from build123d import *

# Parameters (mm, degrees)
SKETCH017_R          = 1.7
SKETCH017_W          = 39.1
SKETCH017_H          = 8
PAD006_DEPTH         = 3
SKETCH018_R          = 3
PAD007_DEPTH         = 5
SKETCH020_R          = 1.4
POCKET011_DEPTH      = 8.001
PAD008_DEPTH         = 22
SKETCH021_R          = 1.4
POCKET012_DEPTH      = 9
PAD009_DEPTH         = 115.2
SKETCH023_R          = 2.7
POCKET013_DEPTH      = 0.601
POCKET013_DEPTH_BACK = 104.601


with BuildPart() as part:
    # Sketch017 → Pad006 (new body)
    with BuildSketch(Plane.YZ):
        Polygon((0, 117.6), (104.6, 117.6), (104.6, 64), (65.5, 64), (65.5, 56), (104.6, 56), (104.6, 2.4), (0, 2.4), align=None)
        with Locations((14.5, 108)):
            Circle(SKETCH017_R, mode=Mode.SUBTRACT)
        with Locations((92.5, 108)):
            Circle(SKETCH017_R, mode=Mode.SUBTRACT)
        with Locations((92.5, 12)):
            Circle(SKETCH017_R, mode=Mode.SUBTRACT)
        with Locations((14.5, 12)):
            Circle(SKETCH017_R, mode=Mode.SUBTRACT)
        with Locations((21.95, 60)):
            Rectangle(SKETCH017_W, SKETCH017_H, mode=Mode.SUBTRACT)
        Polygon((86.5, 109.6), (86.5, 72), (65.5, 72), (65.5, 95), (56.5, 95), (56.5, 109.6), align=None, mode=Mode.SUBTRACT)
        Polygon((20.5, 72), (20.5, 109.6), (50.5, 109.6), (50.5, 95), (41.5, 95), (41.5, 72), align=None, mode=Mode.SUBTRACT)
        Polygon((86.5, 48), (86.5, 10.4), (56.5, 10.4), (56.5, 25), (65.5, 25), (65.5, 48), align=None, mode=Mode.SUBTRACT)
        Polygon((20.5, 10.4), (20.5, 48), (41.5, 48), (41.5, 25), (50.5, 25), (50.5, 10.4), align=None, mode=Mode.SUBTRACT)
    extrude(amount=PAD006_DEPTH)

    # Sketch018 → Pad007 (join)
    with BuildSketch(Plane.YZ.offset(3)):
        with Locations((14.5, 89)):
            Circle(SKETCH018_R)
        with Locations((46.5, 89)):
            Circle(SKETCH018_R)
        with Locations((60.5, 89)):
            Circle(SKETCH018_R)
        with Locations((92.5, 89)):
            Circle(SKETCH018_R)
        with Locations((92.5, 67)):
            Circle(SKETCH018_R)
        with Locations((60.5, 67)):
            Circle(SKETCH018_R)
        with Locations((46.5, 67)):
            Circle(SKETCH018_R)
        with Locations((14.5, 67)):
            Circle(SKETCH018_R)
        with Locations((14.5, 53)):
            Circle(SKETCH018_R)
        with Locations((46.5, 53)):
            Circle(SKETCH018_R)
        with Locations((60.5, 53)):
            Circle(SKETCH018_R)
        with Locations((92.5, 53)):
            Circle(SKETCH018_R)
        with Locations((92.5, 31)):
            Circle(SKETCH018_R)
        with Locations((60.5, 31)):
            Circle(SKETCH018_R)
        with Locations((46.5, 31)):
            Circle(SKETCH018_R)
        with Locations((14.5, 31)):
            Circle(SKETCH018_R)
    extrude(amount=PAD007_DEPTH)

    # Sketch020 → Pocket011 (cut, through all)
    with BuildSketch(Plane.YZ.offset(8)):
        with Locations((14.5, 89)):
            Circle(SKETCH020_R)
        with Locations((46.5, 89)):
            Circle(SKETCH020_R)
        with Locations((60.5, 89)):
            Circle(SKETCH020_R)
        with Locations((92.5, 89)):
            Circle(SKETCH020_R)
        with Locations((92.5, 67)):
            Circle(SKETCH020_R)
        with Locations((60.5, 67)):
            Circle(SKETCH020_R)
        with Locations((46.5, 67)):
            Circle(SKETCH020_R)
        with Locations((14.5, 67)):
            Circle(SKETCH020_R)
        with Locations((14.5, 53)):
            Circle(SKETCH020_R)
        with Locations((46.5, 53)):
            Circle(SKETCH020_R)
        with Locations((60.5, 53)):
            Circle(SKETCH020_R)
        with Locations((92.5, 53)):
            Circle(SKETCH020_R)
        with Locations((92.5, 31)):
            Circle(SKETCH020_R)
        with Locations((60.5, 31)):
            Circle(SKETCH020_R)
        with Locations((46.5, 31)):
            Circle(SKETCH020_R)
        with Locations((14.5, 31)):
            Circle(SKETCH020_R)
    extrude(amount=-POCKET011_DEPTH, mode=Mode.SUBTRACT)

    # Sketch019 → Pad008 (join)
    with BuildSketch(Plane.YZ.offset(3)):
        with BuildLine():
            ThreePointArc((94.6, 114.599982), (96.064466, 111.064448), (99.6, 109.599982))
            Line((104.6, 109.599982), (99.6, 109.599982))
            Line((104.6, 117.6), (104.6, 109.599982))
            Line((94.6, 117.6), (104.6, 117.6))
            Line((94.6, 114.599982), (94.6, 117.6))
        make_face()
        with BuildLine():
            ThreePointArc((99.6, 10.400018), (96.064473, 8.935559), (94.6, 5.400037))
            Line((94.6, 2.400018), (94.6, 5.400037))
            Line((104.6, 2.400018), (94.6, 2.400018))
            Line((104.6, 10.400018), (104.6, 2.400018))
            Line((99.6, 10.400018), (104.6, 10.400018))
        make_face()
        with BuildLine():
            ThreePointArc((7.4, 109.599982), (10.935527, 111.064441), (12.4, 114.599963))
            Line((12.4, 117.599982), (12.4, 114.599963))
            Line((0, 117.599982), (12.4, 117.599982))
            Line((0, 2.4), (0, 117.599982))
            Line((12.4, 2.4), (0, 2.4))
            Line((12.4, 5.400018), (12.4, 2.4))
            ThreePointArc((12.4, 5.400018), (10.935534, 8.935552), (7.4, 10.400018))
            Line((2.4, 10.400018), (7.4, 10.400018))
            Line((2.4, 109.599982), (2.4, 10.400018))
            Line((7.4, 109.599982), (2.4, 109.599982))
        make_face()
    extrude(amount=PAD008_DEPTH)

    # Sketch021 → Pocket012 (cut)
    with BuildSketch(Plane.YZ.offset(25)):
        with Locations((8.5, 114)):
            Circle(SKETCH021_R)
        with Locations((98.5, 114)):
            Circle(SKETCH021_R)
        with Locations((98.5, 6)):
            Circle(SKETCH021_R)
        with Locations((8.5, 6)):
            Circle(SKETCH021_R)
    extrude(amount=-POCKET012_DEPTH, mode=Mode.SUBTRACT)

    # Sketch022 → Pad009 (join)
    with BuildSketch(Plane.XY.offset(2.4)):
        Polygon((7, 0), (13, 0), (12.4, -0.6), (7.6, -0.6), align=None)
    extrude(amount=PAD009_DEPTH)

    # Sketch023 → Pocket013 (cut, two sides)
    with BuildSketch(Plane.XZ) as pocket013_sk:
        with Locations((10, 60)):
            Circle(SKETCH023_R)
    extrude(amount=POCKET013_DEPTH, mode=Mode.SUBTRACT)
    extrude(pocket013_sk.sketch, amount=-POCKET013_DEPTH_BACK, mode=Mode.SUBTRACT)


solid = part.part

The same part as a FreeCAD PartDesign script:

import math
import FreeCAD as App
import Part
import Sketcher
Q = App.Units.Quantity

doc = App.newDocument("Part")
params = doc.addObject("Spreadsheet::Sheet", "Params")
for row, (alias, value) in enumerate([
    ("sketch1_diameter", "3.4 mm"),
    ("sketch1_width", "30 mm"),
    ("sketch1_width2", "9 mm"),
    ("sketch1_height", "8 mm"),
    ("sketch1_height2", "23 mm"),
    ("pad1_length", "3 mm"),
    ("sketch2_diameter", "6 mm"),
    ("pad2_length", "5 mm"),
    ("sketch3_diameter", "2.8 mm"),
    ("sketch4_radius", "5 mm"),
    ("sketch4_width", "5 mm"),
    ("sketch4_height", "8 mm"),
    ("sketch4_width2", "12.4 mm"),
    ("pad3_length", "22 mm"),
    ("sketch5_diameter", "2.8 mm"),
    ("pocket2_length", "9 mm"),
    ("sketch6_width", "6 mm"),
    ("sketch6_width2", "4.8 mm"),
    ("pad4_length", "115.2 mm"),
    ("sketch7_diameter", "5.4 mm"),
], start=1):
    params.set(f"A{row}", alias)
    params.set(f"B{row}", "=" + value)
    params.setAlias(f"B{row}", alias)

body = doc.addObject("PartDesign::Body", "Body")

# Sketch on YZ plane
sketch1 = body.newObject("Sketcher::SketchObject", "Sketch")
sketch1.AttachmentSupport = (doc.getObject("YZ_Plane"), [""])
sketch1.MapMode = "FlatFace"
sketch1.addGeometry([
    Part.LineSegment(App.Vector(104.6, 117.6, 0), App.Vector(0, 117.6, 0)),  # 0
    Part.LineSegment(App.Vector(0, 117.6, 0), App.Vector(0, 2.4, 0)),  # 1
    Part.LineSegment(App.Vector(0, 2.4, 0), App.Vector(104.6, 2.4, 0)),  # 2
    Part.LineSegment(App.Vector(104.6, 2.4, 0), App.Vector(104.6, 56, 0)),  # 3
    Part.LineSegment(App.Vector(104.6, 56, 0), App.Vector(65.5, 56, 0)),  # 4
    Part.LineSegment(App.Vector(65.5, 56, 0), App.Vector(65.5, 64, 0)),  # 5
    Part.LineSegment(App.Vector(65.5, 64, 0), App.Vector(104.6, 64, 0)),  # 6
    Part.LineSegment(App.Vector(104.6, 64, 0), App.Vector(104.6, 117.6, 0)),  # 7
    Part.Circle(App.Vector(92.5, 12, 0), App.Vector(0, 0, 1), 1.7),  # 8
    Part.LineSegment(App.Vector(86.5, 48, 0), App.Vector(86.5, 10.4, 0)),  # 9
    Part.LineSegment(App.Vector(86.5, 10.4, 0), App.Vector(56.5, 10.4, 0)),  # 10
    Part.LineSegment(App.Vector(56.5, 10.4, 0), App.Vector(56.5, 25, 0)),  # 11
    Part.LineSegment(App.Vector(56.5, 25, 0), App.Vector(65.5, 25, 0)),  # 12
    Part.LineSegment(App.Vector(65.5, 25, 0), App.Vector(65.5, 48, 0)),  # 13
    Part.LineSegment(App.Vector(65.5, 48, 0), App.Vector(86.5, 48, 0)),  # 14
    Part.LineSegment(App.Vector(20.5, 10.4, 0), App.Vector(20.5, 48, 0)),  # 15
    Part.LineSegment(App.Vector(20.5, 48, 0), App.Vector(41.5, 48, 0)),  # 16
    Part.LineSegment(App.Vector(41.5, 48, 0), App.Vector(41.5, 25, 0)),  # 17
    Part.LineSegment(App.Vector(41.5, 25, 0), App.Vector(50.5, 25, 0)),  # 18
    Part.LineSegment(App.Vector(50.5, 25, 0), App.Vector(50.5, 10.4, 0)),  # 19
    Part.LineSegment(App.Vector(50.5, 10.4, 0), App.Vector(20.5, 10.4, 0)),  # 20
    Part.Circle(App.Vector(14.5, 12, 0), App.Vector(0, 0, 1), 1.7),  # 21
    Part.LineSegment(App.Vector(86.5, 109.6, 0), App.Vector(86.5, 72, 0)),  # 22
    Part.LineSegment(App.Vector(86.5, 72, 0), App.Vector(65.5, 72, 0)),  # 23
    Part.LineSegment(App.Vector(65.5, 72, 0), App.Vector(65.5, 95, 0)),  # 24
    Part.LineSegment(App.Vector(65.5, 95, 0), App.Vector(56.5, 95, 0)),  # 25
    Part.LineSegment(App.Vector(56.5, 95, 0), App.Vector(56.5, 109.6, 0)),  # 26
    Part.LineSegment(App.Vector(56.5, 109.6, 0), App.Vector(86.5, 109.6, 0)),  # 27
    Part.Circle(App.Vector(92.5, 108, 0), App.Vector(0, 0, 1), 1.7),  # 28
    Part.LineSegment(App.Vector(2.4, 56, 0), App.Vector(2.4, 64, 0)),  # 29
    Part.LineSegment(App.Vector(2.4, 64, 0), App.Vector(41.5, 64, 0)),  # 30
    Part.LineSegment(App.Vector(41.5, 64, 0), App.Vector(41.5, 56, 0)),  # 31
    Part.LineSegment(App.Vector(41.5, 56, 0), App.Vector(2.4, 56, 0)),  # 32
    Part.LineSegment(App.Vector(20.5, 72, 0), App.Vector(20.5, 109.6, 0)),  # 33
    Part.LineSegment(App.Vector(20.5, 109.6, 0), App.Vector(50.5, 109.6, 0)),  # 34
    Part.LineSegment(App.Vector(50.5, 109.6, 0), App.Vector(50.5, 95, 0)),  # 35
    Part.LineSegment(App.Vector(50.5, 95, 0), App.Vector(41.5, 95, 0)),  # 36
    Part.LineSegment(App.Vector(41.5, 95, 0), App.Vector(41.5, 72, 0)),  # 37
    Part.LineSegment(App.Vector(41.5, 72, 0), App.Vector(20.5, 72, 0)),  # 38
    Part.Circle(App.Vector(14.5, 108, 0), App.Vector(0, 0, 1), 1.7),  # 39
], False)
sketch1.addConstraint([
    Sketcher.Constraint("Coincident", 0, 2, 1, 1),
    Sketcher.Constraint("Coincident", 1, 2, 2, 1),
    Sketcher.Constraint("Coincident", 2, 2, 3, 1),
    Sketcher.Constraint("Coincident", 3, 2, 4, 1),
    Sketcher.Constraint("Coincident", 4, 2, 5, 1),
    Sketcher.Constraint("Coincident", 5, 2, 6, 1),
    Sketcher.Constraint("Coincident", 6, 2, 7, 1),
    Sketcher.Constraint("Coincident", 7, 2, 0, 1),
    Sketcher.Constraint("Coincident", 9, 2, 10, 1),
    Sketcher.Constraint("Coincident", 10, 2, 11, 1),
    Sketcher.Constraint("Coincident", 11, 2, 12, 1),
    Sketcher.Constraint("Coincident", 12, 2, 13, 1),
    Sketcher.Constraint("Coincident", 13, 2, 14, 1),
    Sketcher.Constraint("Coincident", 14, 2, 9, 1),
    Sketcher.Constraint("Coincident", 15, 2, 16, 1),
    Sketcher.Constraint("Coincident", 16, 2, 17, 1),
    Sketcher.Constraint("Coincident", 17, 2, 18, 1),
    Sketcher.Constraint("Coincident", 18, 2, 19, 1),
    Sketcher.Constraint("Coincident", 19, 2, 20, 1),
    Sketcher.Constraint("Coincident", 20, 2, 15, 1),
    Sketcher.Constraint("Coincident", 22, 2, 23, 1),
    Sketcher.Constraint("Coincident", 23, 2, 24, 1),
    Sketcher.Constraint("Coincident", 24, 2, 25, 1),
    Sketcher.Constraint("Coincident", 25, 2, 26, 1),
    Sketcher.Constraint("Coincident", 26, 2, 27, 1),
    Sketcher.Constraint("Coincident", 27, 2, 22, 1),
    Sketcher.Constraint("Coincident", 29, 2, 30, 1),
    Sketcher.Constraint("Coincident", 30, 2, 31, 1),
    Sketcher.Constraint("Coincident", 31, 2, 32, 1),
    Sketcher.Constraint("Coincident", 32, 2, 29, 1),
    Sketcher.Constraint("Coincident", 33, 2, 34, 1),
    Sketcher.Constraint("Coincident", 34, 2, 35, 1),
    Sketcher.Constraint("Coincident", 35, 2, 36, 1),
    Sketcher.Constraint("Coincident", 36, 2, 37, 1),
    Sketcher.Constraint("Coincident", 37, 2, 38, 1),
    Sketcher.Constraint("Coincident", 38, 2, 33, 1),
    Sketcher.Constraint("Horizontal", 0),
    Sketcher.Constraint("Vertical", 1),
    Sketcher.Constraint("Horizontal", 2),
    Sketcher.Constraint("Vertical", 3),
    Sketcher.Constraint("Horizontal", 4),
    Sketcher.Constraint("Vertical", 5),
    Sketcher.Constraint("Horizontal", 6),
    Sketcher.Constraint("Vertical", 7),
    Sketcher.Constraint("Vertical", 9),
    Sketcher.Constraint("Horizontal", 10),
    Sketcher.Constraint("Vertical", 11),
    Sketcher.Constraint("Horizontal", 12),
    Sketcher.Constraint("Vertical", 13),
    Sketcher.Constraint("Horizontal", 14),
    Sketcher.Constraint("Vertical", 15),
    Sketcher.Constraint("Horizontal", 16),
    Sketcher.Constraint("Vertical", 17),
    Sketcher.Constraint("Horizontal", 18),
    Sketcher.Constraint("Vertical", 19),
    Sketcher.Constraint("Horizontal", 20),
    Sketcher.Constraint("Vertical", 22),
    Sketcher.Constraint("Horizontal", 23),
    Sketcher.Constraint("Vertical", 24),
    Sketcher.Constraint("Horizontal", 25),
    Sketcher.Constraint("Vertical", 26),
    Sketcher.Constraint("Horizontal", 27),
    Sketcher.Constraint("Vertical", 29),
    Sketcher.Constraint("Horizontal", 30),
    Sketcher.Constraint("Vertical", 31),
    Sketcher.Constraint("Horizontal", 32),
    Sketcher.Constraint("Vertical", 33),
    Sketcher.Constraint("Horizontal", 34),
    Sketcher.Constraint("Vertical", 35),
    Sketcher.Constraint("Horizontal", 36),
    Sketcher.Constraint("Vertical", 37),
    Sketcher.Constraint("Horizontal", 38),
    Sketcher.Constraint("Equal", 8, 21),
    Sketcher.Constraint("Equal", 21, 28),
    Sketcher.Constraint("Equal", 28, 39),
    Sketcher.Constraint("PointOnObject", 0, 2, -2),
    Sketcher.Constraint("Horizontal", 8, 3, 21, 3),
    Sketcher.Constraint("Horizontal", 28, 3, 39, 3),
    Sketcher.Constraint("Horizontal", 14, 2, 15, 2),
    Sketcher.Constraint("Horizontal", 12, 2, 17, 2),
    Sketcher.Constraint("Horizontal", 10, 2, 19, 2),
    Sketcher.Constraint("Horizontal", 6, 2, 29, 2),
    Sketcher.Constraint("Horizontal", 4, 2, 31, 2),
    Sketcher.Constraint("Horizontal", 27, 2, 33, 2),
    Sketcher.Constraint("Horizontal", 25, 2, 35, 2),
    Sketcher.Constraint("Horizontal", 23, 2, 37, 2),
    Sketcher.Constraint("Vertical", 8, 3, 28, 3),
    Sketcher.Constraint("Vertical", 21, 3, 39, 3),
    Sketcher.Constraint("Vertical", 3, 2, 6, 2),
    Sketcher.Constraint("Vertical", 5, 2, 12, 2),
    Sketcher.Constraint("Vertical", 14, 2, 22, 2),
    Sketcher.Constraint("Vertical", 13, 2, 23, 2),
    Sketcher.Constraint("Vertical", 11, 2, 25, 2),
    Sketcher.Constraint("Vertical", 17, 2, 30, 2),
    Sketcher.Constraint("Vertical", 20, 2, 33, 2),
    Sketcher.Constraint("Vertical", 19, 2, 34, 2),
    Sketcher.Constraint("Vertical", 31, 2, 36, 2),
    Sketcher.Constraint("Equal", 14, 16),
    Sketcher.Constraint("Equal", 12, 18),
    Sketcher.Constraint("Equal", 6, 30),
    Sketcher.Constraint("Equal", 3, 7),
    Sketcher.Constraint("Equal", 15, 22),
    Sketcher.Constraint("Equal", 17, 24),
    Sketcher.Constraint("Diameter", 8, Q("3.4 mm")),
    Sketcher.Constraint("DistanceX", 10, 2, 10, 1, Q("30 mm")),
    Sketcher.Constraint("DistanceX", 12, 1, 12, 2, Q("9 mm")),
    Sketcher.Constraint("DistanceY", 5, 1, 5, 2, Q("8 mm")),
    Sketcher.Constraint("DistanceY", 13, 1, 13, 2, Q("23 mm")),
    Sketcher.Constraint("DistanceX", 0, 2, 0, 1, Q("104.6 mm")),
    Sketcher.Constraint("DistanceX", 4, 2, 4, 1, Q("39.1 mm")),
    Sketcher.Constraint("DistanceY", 1, 2, 1, 1, Q("115.2 mm")),
    Sketcher.Constraint("DistanceY", 9, 2, 9, 1, Q("37.6 mm")),
    Sketcher.Constraint("DistanceY", -1, 1, 8, 3, Q("12 mm")),
    Sketcher.Constraint("DistanceY", -1, 1, 28, 3, Q("108 mm")),
    Sketcher.Constraint("DistanceY", -1, 1, 3, 2, Q("56 mm")),
    Sketcher.Constraint("DistanceY", -1, 1, 11, 2, Q("25 mm")),
    Sketcher.Constraint("DistanceY", -1, 1, 22, 2, Q("72 mm")),
    Sketcher.Constraint("DistanceX", 21, 3, 8, 3, Q("78 mm")),
    Sketcher.Constraint("DistanceX", 4, 2, 8, 3, Q("27 mm")),
    Sketcher.Constraint("DistanceX", 21, 3, 15, 2, Q("6 mm")),
])
sketch1.setExpression("Constraints[103]", "Params.sketch1_diameter")
sketch1.setExpression("Constraints[104]", "Params.sketch1_width")
sketch1.setExpression("Constraints[105]", "Params.sketch1_width2")
sketch1.setExpression("Constraints[106]", "Params.sketch1_height")
sketch1.setExpression("Constraints[107]", "Params.sketch1_height2")
pad1 = body.newObject("PartDesign::Pad", "Pad")
pad1.Profile = sketch1
pad1.setExpression("Length", "Params.pad1_length")

# Sketch on YZ plane
sketch2 = body.newObject("Sketcher::SketchObject", "Sketch001")
sketch2.AttachmentSupport = (doc.getObject("YZ_Plane"), [""])
sketch2.MapMode = "FlatFace"
sketch2.AttachmentOffset = App.Placement(App.Vector(0, 0, 3), App.Rotation())
sketch2.addGeometry([
    Part.Circle(App.Vector(14.5, 89, 0), App.Vector(0, 0, 1), 3),  # 0
    Part.Circle(App.Vector(46.5, 89, 0), App.Vector(0, 0, 1), 3),  # 1
    Part.Circle(App.Vector(60.5, 89, 0), App.Vector(0, 0, 1), 3),  # 2
    Part.Circle(App.Vector(92.5, 89, 0), App.Vector(0, 0, 1), 3),  # 3
    Part.Circle(App.Vector(92.5, 67, 0), App.Vector(0, 0, 1), 3),  # 4
    Part.Circle(App.Vector(60.5, 67, 0), App.Vector(0, 0, 1), 3),  # 5
    Part.Circle(App.Vector(46.5, 67, 0), App.Vector(0, 0, 1), 3),  # 6
    Part.Circle(App.Vector(14.5, 67, 0), App.Vector(0, 0, 1), 3),  # 7
    Part.Circle(App.Vector(14.5, 53, 0), App.Vector(0, 0, 1), 3),  # 8
    Part.Circle(App.Vector(46.5, 53, 0), App.Vector(0, 0, 1), 3),  # 9
    Part.Circle(App.Vector(60.5, 53, 0), App.Vector(0, 0, 1), 3),  # 10
    Part.Circle(App.Vector(92.5, 53, 0), App.Vector(0, 0, 1), 3),  # 11
    Part.Circle(App.Vector(92.5, 31, 0), App.Vector(0, 0, 1), 3),  # 12
    Part.Circle(App.Vector(60.5, 31, 0), App.Vector(0, 0, 1), 3),  # 13
    Part.Circle(App.Vector(46.5, 31, 0), App.Vector(0, 0, 1), 3),  # 14
    Part.Circle(App.Vector(14.5, 31, 0), App.Vector(0, 0, 1), 3),  # 15
], False)
sketch2.addConstraint([
    Sketcher.Constraint("Equal", 0, 1),
    Sketcher.Constraint("Equal", 1, 2),
    Sketcher.Constraint("Equal", 2, 3),
    Sketcher.Constraint("Equal", 3, 4),
    Sketcher.Constraint("Equal", 4, 5),
    Sketcher.Constraint("Equal", 5, 6),
    Sketcher.Constraint("Equal", 6, 7),
    Sketcher.Constraint("Equal", 7, 8),
    Sketcher.Constraint("Equal", 8, 9),
    Sketcher.Constraint("Equal", 9, 10),
    Sketcher.Constraint("Equal", 10, 11),
    Sketcher.Constraint("Equal", 11, 12),
    Sketcher.Constraint("Equal", 12, 13),
    Sketcher.Constraint("Equal", 13, 14),
    Sketcher.Constraint("Equal", 14, 15),
    Sketcher.Constraint("Horizontal", 0, 3, 1, 3),
    Sketcher.Constraint("Horizontal", 1, 3, 2, 3),
    Sketcher.Constraint("Horizontal", 2, 3, 3, 3),
    Sketcher.Constraint("Horizontal", 4, 3, 5, 3),
    Sketcher.Constraint("Horizontal", 5, 3, 6, 3),
    Sketcher.Constraint("Horizontal", 6, 3, 7, 3),
    Sketcher.Constraint("Horizontal", 8, 3, 9, 3),
    Sketcher.Constraint("Horizontal", 9, 3, 10, 3),
    Sketcher.Constraint("Horizontal", 10, 3, 11, 3),
    Sketcher.Constraint("Horizontal", 12, 3, 13, 3),
    Sketcher.Constraint("Horizontal", 13, 3, 14, 3),
    Sketcher.Constraint("Horizontal", 14, 3, 15, 3),
    Sketcher.Constraint("Vertical", 3, 3, 4, 3),
    Sketcher.Constraint("Vertical", 2, 3, 5, 3),
    Sketcher.Constraint("Vertical", 1, 3, 6, 3),
    Sketcher.Constraint("Vertical", 0, 3, 7, 3),
    Sketcher.Constraint("Vertical", 7, 3, 8, 3),
    Sketcher.Constraint("Vertical", 6, 3, 9, 3),
    Sketcher.Constraint("Vertical", 5, 3, 10, 3),
    Sketcher.Constraint("Vertical", 4, 3, 11, 3),
    Sketcher.Constraint("Vertical", 11, 3, 12, 3),
    Sketcher.Constraint("Vertical", 10, 3, 13, 3),
    Sketcher.Constraint("Vertical", 9, 3, 14, 3),
    Sketcher.Constraint("Vertical", 8, 3, 15, 3),
    Sketcher.Constraint("Diameter", 0, Q("6 mm")),
    Sketcher.Constraint("DistanceY", -1, 1, 0, 3, Q("89 mm")),
    Sketcher.Constraint("DistanceY", -1, 1, 4, 3, Q("67 mm")),
    Sketcher.Constraint("DistanceY", -1, 1, 8, 3, Q("53 mm")),
    Sketcher.Constraint("DistanceY", -1, 1, 12, 3, Q("31 mm")),
    Sketcher.Constraint("DistanceX", 0, 3, 1, 3, Q("32 mm")),
    Sketcher.Constraint("DistanceX", 1, 3, 2, 3, Q("14 mm")),
    Sketcher.Constraint("DistanceX", 2, 3, 3, 3, Q("32 mm")),
    Sketcher.Constraint("DistanceX", -1, 1, 0, 3, Q("14.5 mm")),
])
sketch2.setExpression("Constraints[39]", "Params.sketch2_diameter")
pad2 = body.newObject("PartDesign::Pad", "Pad001")
pad2.Profile = sketch2
pad2.setExpression("Length", "Params.pad2_length")

# Sketch on YZ plane
sketch3 = body.newObject("Sketcher::SketchObject", "Sketch002")
sketch3.AttachmentSupport = (doc.getObject("YZ_Plane"), [""])
sketch3.MapMode = "FlatFace"
sketch3.AttachmentOffset = App.Placement(App.Vector(0, 0, 8), App.Rotation())
sketch3.addGeometry([
    Part.Circle(App.Vector(14.5, 89, 0), App.Vector(0, 0, 1), 1.4),  # 0
    Part.Circle(App.Vector(46.5, 89, 0), App.Vector(0, 0, 1), 1.4),  # 1
    Part.Circle(App.Vector(60.5, 89, 0), App.Vector(0, 0, 1), 1.4),  # 2
    Part.Circle(App.Vector(92.5, 89, 0), App.Vector(0, 0, 1), 1.4),  # 3
    Part.Circle(App.Vector(92.5, 67, 0), App.Vector(0, 0, 1), 1.4),  # 4
    Part.Circle(App.Vector(60.5, 67, 0), App.Vector(0, 0, 1), 1.4),  # 5
    Part.Circle(App.Vector(46.5, 67, 0), App.Vector(0, 0, 1), 1.4),  # 6
    Part.Circle(App.Vector(14.5, 67, 0), App.Vector(0, 0, 1), 1.4),  # 7
    Part.Circle(App.Vector(14.5, 53, 0), App.Vector(0, 0, 1), 1.4),  # 8
    Part.Circle(App.Vector(46.5, 53, 0), App.Vector(0, 0, 1), 1.4),  # 9
    Part.Circle(App.Vector(60.5, 53, 0), App.Vector(0, 0, 1), 1.4),  # 10
    Part.Circle(App.Vector(92.5, 53, 0), App.Vector(0, 0, 1), 1.4),  # 11
    Part.Circle(App.Vector(92.5, 31, 0), App.Vector(0, 0, 1), 1.4),  # 12
    Part.Circle(App.Vector(60.5, 31, 0), App.Vector(0, 0, 1), 1.4),  # 13
    Part.Circle(App.Vector(46.5, 31, 0), App.Vector(0, 0, 1), 1.4),  # 14
    Part.Circle(App.Vector(14.5, 31, 0), App.Vector(0, 0, 1), 1.4),  # 15
], False)
sketch3.addConstraint([
    Sketcher.Constraint("Equal", 0, 1),
    Sketcher.Constraint("Equal", 1, 2),
    Sketcher.Constraint("Equal", 2, 3),
    Sketcher.Constraint("Equal", 3, 4),
    Sketcher.Constraint("Equal", 4, 5),
    Sketcher.Constraint("Equal", 5, 6),
    Sketcher.Constraint("Equal", 6, 7),
    Sketcher.Constraint("Equal", 7, 8),
    Sketcher.Constraint("Equal", 8, 9),
    Sketcher.Constraint("Equal", 9, 10),
    Sketcher.Constraint("Equal", 10, 11),
    Sketcher.Constraint("Equal", 11, 12),
    Sketcher.Constraint("Equal", 12, 13),
    Sketcher.Constraint("Equal", 13, 14),
    Sketcher.Constraint("Equal", 14, 15),
    Sketcher.Constraint("Horizontal", 0, 3, 1, 3),
    Sketcher.Constraint("Horizontal", 1, 3, 2, 3),
    Sketcher.Constraint("Horizontal", 2, 3, 3, 3),
    Sketcher.Constraint("Horizontal", 4, 3, 5, 3),
    Sketcher.Constraint("Horizontal", 5, 3, 6, 3),
    Sketcher.Constraint("Horizontal", 6, 3, 7, 3),
    Sketcher.Constraint("Horizontal", 8, 3, 9, 3),
    Sketcher.Constraint("Horizontal", 9, 3, 10, 3),
    Sketcher.Constraint("Horizontal", 10, 3, 11, 3),
    Sketcher.Constraint("Horizontal", 12, 3, 13, 3),
    Sketcher.Constraint("Horizontal", 13, 3, 14, 3),
    Sketcher.Constraint("Horizontal", 14, 3, 15, 3),
    Sketcher.Constraint("Vertical", 3, 3, 4, 3),
    Sketcher.Constraint("Vertical", 2, 3, 5, 3),
    Sketcher.Constraint("Vertical", 1, 3, 6, 3),
    Sketcher.Constraint("Vertical", 0, 3, 7, 3),
    Sketcher.Constraint("Vertical", 7, 3, 8, 3),
    Sketcher.Constraint("Vertical", 6, 3, 9, 3),
    Sketcher.Constraint("Vertical", 5, 3, 10, 3),
    Sketcher.Constraint("Vertical", 4, 3, 11, 3),
    Sketcher.Constraint("Vertical", 11, 3, 12, 3),
    Sketcher.Constraint("Vertical", 10, 3, 13, 3),
    Sketcher.Constraint("Vertical", 9, 3, 14, 3),
    Sketcher.Constraint("Vertical", 8, 3, 15, 3),
    Sketcher.Constraint("Diameter", 0, Q("2.8 mm")),
    Sketcher.Constraint("DistanceY", -1, 1, 0, 3, Q("89 mm")),
    Sketcher.Constraint("DistanceY", -1, 1, 4, 3, Q("67 mm")),
    Sketcher.Constraint("DistanceY", -1, 1, 8, 3, Q("53 mm")),
    Sketcher.Constraint("DistanceY", -1, 1, 12, 3, Q("31 mm")),
    Sketcher.Constraint("DistanceX", 0, 3, 1, 3, Q("32 mm")),
    Sketcher.Constraint("DistanceX", 1, 3, 2, 3, Q("14 mm")),
    Sketcher.Constraint("DistanceX", 2, 3, 3, 3, Q("32 mm")),
    Sketcher.Constraint("DistanceX", -1, 1, 0, 3, Q("14.5 mm")),
])
sketch3.setExpression("Constraints[39]", "Params.sketch3_diameter")
pocket1 = body.newObject("PartDesign::Pocket", "Pocket")
pocket1.Profile = sketch3
pocket1.Type = "ThroughAll"

# Sketch on YZ plane
sketch4 = body.newObject("Sketcher::SketchObject", "Sketch003")
sketch4.AttachmentSupport = (doc.getObject("YZ_Plane"), [""])
sketch4.MapMode = "FlatFace"
sketch4.AttachmentOffset = App.Placement(App.Vector(0, 0, 3), App.Rotation())
sketch4.addGeometry([
    Part.ArcOfCircle(Part.Circle(App.Vector(99.6, 114.6, 0), App.Vector(0, 0, 1), 5), math.radians(180), math.radians(270)),  # 0
    Part.LineSegment(App.Vector(99.6, 109.6, 0), App.Vector(104.6, 109.6, 0)),  # 1
    Part.LineSegment(App.Vector(104.6, 109.6, 0), App.Vector(104.6, 117.6, 0)),  # 2
    Part.LineSegment(App.Vector(104.6, 117.6, 0), App.Vector(94.6, 117.6, 0)),  # 3
    Part.LineSegment(App.Vector(94.6, 117.6, 0), App.Vector(94.6, 114.6, 0)),  # 4
    Part.ArcOfCircle(Part.Circle(App.Vector(99.6, 5.4, 0), App.Vector(0, 0, 1), 5), math.radians(90), math.radians(180)),  # 5
    Part.LineSegment(App.Vector(94.6, 5.4, 0), App.Vector(94.6, 2.4, 0)),  # 6
    Part.LineSegment(App.Vector(94.6, 2.4, 0), App.Vector(104.6, 2.4, 0)),  # 7
    Part.LineSegment(App.Vector(104.6, 2.4, 0), App.Vector(104.6, 10.4, 0)),  # 8
    Part.LineSegment(App.Vector(104.6, 10.4, 0), App.Vector(99.6, 10.4, 0)),  # 9
    Part.ArcOfCircle(Part.Circle(App.Vector(7.4, 114.6, 0), App.Vector(0, 0, 1), 5), math.radians(-90), math.radians(0)),  # 10
    Part.LineSegment(App.Vector(12.4, 114.6, 0), App.Vector(12.4, 117.6, 0)),  # 11
    Part.LineSegment(App.Vector(12.4, 117.6, 0), App.Vector(0, 117.6, 0)),  # 12
    Part.LineSegment(App.Vector(0, 117.6, 0), App.Vector(0, 2.4, 0)),  # 13
    Part.LineSegment(App.Vector(0, 2.4, 0), App.Vector(12.4, 2.4, 0)),  # 14
    Part.LineSegment(App.Vector(12.4, 2.4, 0), App.Vector(12.4, 5.4, 0)),  # 15
    Part.ArcOfCircle(Part.Circle(App.Vector(7.4, 5.4, 0), App.Vector(0, 0, 1), 5), math.radians(0), math.radians(90)),  # 16
    Part.LineSegment(App.Vector(7.4, 10.4, 0), App.Vector(2.4, 10.4, 0)),  # 17
    Part.LineSegment(App.Vector(2.4, 10.4, 0), App.Vector(2.4, 109.6, 0)),  # 18
    Part.LineSegment(App.Vector(2.4, 109.6, 0), App.Vector(7.4, 109.6, 0)),  # 19
], False)
sketch4.addConstraint([
    Sketcher.Constraint("Tangent", 0, 2, 1, 1),
    Sketcher.Constraint("Coincident", 1, 2, 2, 1),
    Sketcher.Constraint("Coincident", 2, 2, 3, 1),
    Sketcher.Constraint("Coincident", 3, 2, 4, 1),
    Sketcher.Constraint("Tangent", 4, 2, 0, 1),
    Sketcher.Constraint("Coincident", 5, 2, 6, 1),
    Sketcher.Constraint("Coincident", 6, 2, 7, 1),
    Sketcher.Constraint("Coincident", 7, 2, 8, 1),
    Sketcher.Constraint("Coincident", 8, 2, 9, 1),
    Sketcher.Constraint("Tangent", 9, 2, 5, 1),
    Sketcher.Constraint("Coincident", 10, 2, 11, 1),
    Sketcher.Constraint("Coincident", 11, 2, 12, 1),
    Sketcher.Constraint("Coincident", 12, 2, 13, 1),
    Sketcher.Constraint("Coincident", 13, 2, 14, 1),
    Sketcher.Constraint("Coincident", 14, 2, 15, 1),
    Sketcher.Constraint("Tangent", 15, 2, 16, 1),
    Sketcher.Constraint("Tangent", 16, 2, 17, 1),
    Sketcher.Constraint("Coincident", 17, 2, 18, 1),
    Sketcher.Constraint("Coincident", 18, 2, 19, 1),
    Sketcher.Constraint("Tangent", 19, 2, 10, 1),
    Sketcher.Constraint("Horizontal", 1),
    Sketcher.Constraint("Vertical", 2),
    Sketcher.Constraint("Horizontal", 3),
    Sketcher.Constraint("Vertical", 4),
    Sketcher.Constraint("Vertical", 6),
    Sketcher.Constraint("Horizontal", 7),
    Sketcher.Constraint("Vertical", 8),
    Sketcher.Constraint("Horizontal", 9),
    Sketcher.Constraint("Vertical", 11),
    Sketcher.Constraint("Horizontal", 12),
    Sketcher.Constraint("Vertical", 13),
    Sketcher.Constraint("Horizontal", 14),
    Sketcher.Constraint("Vertical", 15),
    Sketcher.Constraint("Horizontal", 17),
    Sketcher.Constraint("Vertical", 18),
    Sketcher.Constraint("Horizontal", 19),
    Sketcher.Constraint("Equal", 0, 5),
    Sketcher.Constraint("Equal", 5, 10),
    Sketcher.Constraint("Equal", 10, 16),
    Sketcher.Constraint("PointOnObject", 12, 2, -2),
    Sketcher.Constraint("Horizontal", 0, 3, 10, 3),
    Sketcher.Constraint("Horizontal", 5, 3, 16, 3),
    Sketcher.Constraint("Vertical", 0, 3, 5, 3),
    Sketcher.Constraint("Vertical", 10, 3, 16, 3),
    Sketcher.Constraint("Vertical", 2, 2, 7, 2),
    Sketcher.Constraint("Equal", 9, 17),
    Sketcher.Constraint("Equal", 4, 6),
    Sketcher.Constraint("Equal", 6, 11),
    Sketcher.Constraint("Equal", 11, 15),
    Sketcher.Constraint("Radius", 0, Q("5 mm")),
    Sketcher.Constraint("DistanceX", 1, 1, 1, 2, Q("5 mm")),
    Sketcher.Constraint("DistanceY", 8, 1, 8, 2, Q("8 mm")),
    Sketcher.Constraint("DistanceX", 12, 2, 12, 1, Q("12.4 mm")),
    Sketcher.Constraint("DistanceY", 10, 3, 11, 2, Q("3 mm")),
    Sketcher.Constraint("DistanceX", -1, 1, 0, 3, Q("99.6 mm")),
    Sketcher.Constraint("DistanceY", -1, 1, 2, 2, Q("117.6 mm")),
    Sketcher.Constraint("DistanceY", -1, 1, 13, 2, Q("2.4 mm")),
    Sketcher.Constraint("DistanceY", 6, 2, 6, 1, Q("3.000019 mm")),
])
sketch4.setExpression("Constraints[49]", "Params.sketch4_radius")
sketch4.setExpression("Constraints[50]", "Params.sketch4_width")
sketch4.setExpression("Constraints[51]", "Params.sketch4_height")
sketch4.setExpression("Constraints[52]", "Params.sketch4_width2")
pad3 = body.newObject("PartDesign::Pad", "Pad002")
pad3.Profile = sketch4
pad3.setExpression("Length", "Params.pad3_length")

# Sketch on YZ plane
sketch5 = body.newObject("Sketcher::SketchObject", "Sketch004")
sketch5.AttachmentSupport = (doc.getObject("YZ_Plane"), [""])
sketch5.MapMode = "FlatFace"
sketch5.AttachmentOffset = App.Placement(App.Vector(0, 0, 25), App.Rotation())
sketch5.addGeometry([
    Part.Circle(App.Vector(8.5, 114, 0), App.Vector(0, 0, 1), 1.4),
    Part.Circle(App.Vector(98.5, 114, 0), App.Vector(0, 0, 1), 1.4),
    Part.Circle(App.Vector(98.5, 6, 0), App.Vector(0, 0, 1), 1.4),
    Part.Circle(App.Vector(8.5, 6, 0), App.Vector(0, 0, 1), 1.4),
], False)
sketch5.addConstraint([
    Sketcher.Constraint("Equal", 0, 1),
    Sketcher.Constraint("Equal", 1, 2),
    Sketcher.Constraint("Equal", 2, 3),
    Sketcher.Constraint("Horizontal", 0, 3, 1, 3),
    Sketcher.Constraint("Horizontal", 2, 3, 3, 3),
    Sketcher.Constraint("Vertical", 1, 3, 2, 3),
    Sketcher.Constraint("Vertical", 0, 3, 3, 3),
    Sketcher.Constraint("Diameter", 0, Q("2.8 mm")),
    Sketcher.Constraint("DistanceY", -1, 1, 0, 3, Q("114 mm")),
    Sketcher.Constraint("DistanceY", -1, 1, 2, 3, Q("6 mm")),
    Sketcher.Constraint("DistanceX", 0, 3, 1, 3, Q("90 mm")),
    Sketcher.Constraint("DistanceX", -1, 1, 0, 3, Q("8.5 mm")),
])
sketch5.setExpression("Constraints[7]", "Params.sketch5_diameter")
pocket2 = body.newObject("PartDesign::Pocket", "Pocket001")
pocket2.Profile = sketch5
pocket2.setExpression("Length", "Params.pocket2_length")

# Sketch on XY plane
sketch6 = body.newObject("Sketcher::SketchObject", "Sketch005")
sketch6.AttachmentSupport = (doc.getObject("XY_Plane"), [""])
sketch6.MapMode = "FlatFace"
sketch6.AttachmentOffset = App.Placement(App.Vector(0, 0, 2.4), App.Rotation())
sketch6.addGeometry([
    Part.LineSegment(App.Vector(13, 0, 0), App.Vector(7, 0, 0)),
    Part.LineSegment(App.Vector(7, 0, 0), App.Vector(7.6, -0.6, 0)),
    Part.LineSegment(App.Vector(7.6, -0.6, 0), App.Vector(12.4, -0.6, 0)),
    Part.LineSegment(App.Vector(12.4, -0.6, 0), App.Vector(13, 0, 0)),
], False)
sketch6.addConstraint([
    Sketcher.Constraint("Coincident", 0, 2, 1, 1),
    Sketcher.Constraint("Coincident", 1, 2, 2, 1),
    Sketcher.Constraint("Coincident", 2, 2, 3, 1),
    Sketcher.Constraint("Coincident", 3, 2, 0, 1),
    Sketcher.Constraint("Horizontal", 0),
    Sketcher.Constraint("Horizontal", 2),
    Sketcher.Constraint("PointOnObject", 0, 2, -1),
    Sketcher.Constraint("Perpendicular", 1, 3),
    Sketcher.Constraint("Equal", 1, 3),
    Sketcher.Constraint("DistanceX", 0, 2, 0, 1, Q("6 mm")),
    Sketcher.Constraint("DistanceX", 2, 1, 2, 2, Q("4.8 mm")),
    Sketcher.Constraint("DistanceX", -1, 1, 0, 2, Q("7 mm")),
])
sketch6.setExpression("Constraints[9]", "Params.sketch6_width")
sketch6.setExpression("Constraints[10]", "Params.sketch6_width2")
pad4 = body.newObject("PartDesign::Pad", "Pad003")
pad4.Profile = sketch6
pad4.setExpression("Length", "Params.pad4_length")

# Sketch on XZ plane
sketch7 = body.newObject("Sketcher::SketchObject", "Sketch006")
sketch7.AttachmentSupport = (doc.getObject("XZ_Plane"), [""])
sketch7.MapMode = "FlatFace"
sketch7.addGeometry(Part.Circle(App.Vector(10, 60, 0), App.Vector(0, 0, 1), 2.7), False)
sketch7.addConstraint([
    Sketcher.Constraint("Diameter", 0, Q("5.4 mm")),
    Sketcher.Constraint("DistanceX", -1, 1, 0, 3, Q("10 mm")),
    Sketcher.Constraint("DistanceY", -1, 1, 0, 3, Q("60 mm")),
])
sketch7.setExpression("Constraints[0]", "Params.sketch7_diameter")
pocket3 = body.newObject("PartDesign::Pocket", "Pocket002")
pocket3.Profile = sketch7
pocket3.Type = "ThroughAll"
pocket3.Midplane = True

doc.recompute()
